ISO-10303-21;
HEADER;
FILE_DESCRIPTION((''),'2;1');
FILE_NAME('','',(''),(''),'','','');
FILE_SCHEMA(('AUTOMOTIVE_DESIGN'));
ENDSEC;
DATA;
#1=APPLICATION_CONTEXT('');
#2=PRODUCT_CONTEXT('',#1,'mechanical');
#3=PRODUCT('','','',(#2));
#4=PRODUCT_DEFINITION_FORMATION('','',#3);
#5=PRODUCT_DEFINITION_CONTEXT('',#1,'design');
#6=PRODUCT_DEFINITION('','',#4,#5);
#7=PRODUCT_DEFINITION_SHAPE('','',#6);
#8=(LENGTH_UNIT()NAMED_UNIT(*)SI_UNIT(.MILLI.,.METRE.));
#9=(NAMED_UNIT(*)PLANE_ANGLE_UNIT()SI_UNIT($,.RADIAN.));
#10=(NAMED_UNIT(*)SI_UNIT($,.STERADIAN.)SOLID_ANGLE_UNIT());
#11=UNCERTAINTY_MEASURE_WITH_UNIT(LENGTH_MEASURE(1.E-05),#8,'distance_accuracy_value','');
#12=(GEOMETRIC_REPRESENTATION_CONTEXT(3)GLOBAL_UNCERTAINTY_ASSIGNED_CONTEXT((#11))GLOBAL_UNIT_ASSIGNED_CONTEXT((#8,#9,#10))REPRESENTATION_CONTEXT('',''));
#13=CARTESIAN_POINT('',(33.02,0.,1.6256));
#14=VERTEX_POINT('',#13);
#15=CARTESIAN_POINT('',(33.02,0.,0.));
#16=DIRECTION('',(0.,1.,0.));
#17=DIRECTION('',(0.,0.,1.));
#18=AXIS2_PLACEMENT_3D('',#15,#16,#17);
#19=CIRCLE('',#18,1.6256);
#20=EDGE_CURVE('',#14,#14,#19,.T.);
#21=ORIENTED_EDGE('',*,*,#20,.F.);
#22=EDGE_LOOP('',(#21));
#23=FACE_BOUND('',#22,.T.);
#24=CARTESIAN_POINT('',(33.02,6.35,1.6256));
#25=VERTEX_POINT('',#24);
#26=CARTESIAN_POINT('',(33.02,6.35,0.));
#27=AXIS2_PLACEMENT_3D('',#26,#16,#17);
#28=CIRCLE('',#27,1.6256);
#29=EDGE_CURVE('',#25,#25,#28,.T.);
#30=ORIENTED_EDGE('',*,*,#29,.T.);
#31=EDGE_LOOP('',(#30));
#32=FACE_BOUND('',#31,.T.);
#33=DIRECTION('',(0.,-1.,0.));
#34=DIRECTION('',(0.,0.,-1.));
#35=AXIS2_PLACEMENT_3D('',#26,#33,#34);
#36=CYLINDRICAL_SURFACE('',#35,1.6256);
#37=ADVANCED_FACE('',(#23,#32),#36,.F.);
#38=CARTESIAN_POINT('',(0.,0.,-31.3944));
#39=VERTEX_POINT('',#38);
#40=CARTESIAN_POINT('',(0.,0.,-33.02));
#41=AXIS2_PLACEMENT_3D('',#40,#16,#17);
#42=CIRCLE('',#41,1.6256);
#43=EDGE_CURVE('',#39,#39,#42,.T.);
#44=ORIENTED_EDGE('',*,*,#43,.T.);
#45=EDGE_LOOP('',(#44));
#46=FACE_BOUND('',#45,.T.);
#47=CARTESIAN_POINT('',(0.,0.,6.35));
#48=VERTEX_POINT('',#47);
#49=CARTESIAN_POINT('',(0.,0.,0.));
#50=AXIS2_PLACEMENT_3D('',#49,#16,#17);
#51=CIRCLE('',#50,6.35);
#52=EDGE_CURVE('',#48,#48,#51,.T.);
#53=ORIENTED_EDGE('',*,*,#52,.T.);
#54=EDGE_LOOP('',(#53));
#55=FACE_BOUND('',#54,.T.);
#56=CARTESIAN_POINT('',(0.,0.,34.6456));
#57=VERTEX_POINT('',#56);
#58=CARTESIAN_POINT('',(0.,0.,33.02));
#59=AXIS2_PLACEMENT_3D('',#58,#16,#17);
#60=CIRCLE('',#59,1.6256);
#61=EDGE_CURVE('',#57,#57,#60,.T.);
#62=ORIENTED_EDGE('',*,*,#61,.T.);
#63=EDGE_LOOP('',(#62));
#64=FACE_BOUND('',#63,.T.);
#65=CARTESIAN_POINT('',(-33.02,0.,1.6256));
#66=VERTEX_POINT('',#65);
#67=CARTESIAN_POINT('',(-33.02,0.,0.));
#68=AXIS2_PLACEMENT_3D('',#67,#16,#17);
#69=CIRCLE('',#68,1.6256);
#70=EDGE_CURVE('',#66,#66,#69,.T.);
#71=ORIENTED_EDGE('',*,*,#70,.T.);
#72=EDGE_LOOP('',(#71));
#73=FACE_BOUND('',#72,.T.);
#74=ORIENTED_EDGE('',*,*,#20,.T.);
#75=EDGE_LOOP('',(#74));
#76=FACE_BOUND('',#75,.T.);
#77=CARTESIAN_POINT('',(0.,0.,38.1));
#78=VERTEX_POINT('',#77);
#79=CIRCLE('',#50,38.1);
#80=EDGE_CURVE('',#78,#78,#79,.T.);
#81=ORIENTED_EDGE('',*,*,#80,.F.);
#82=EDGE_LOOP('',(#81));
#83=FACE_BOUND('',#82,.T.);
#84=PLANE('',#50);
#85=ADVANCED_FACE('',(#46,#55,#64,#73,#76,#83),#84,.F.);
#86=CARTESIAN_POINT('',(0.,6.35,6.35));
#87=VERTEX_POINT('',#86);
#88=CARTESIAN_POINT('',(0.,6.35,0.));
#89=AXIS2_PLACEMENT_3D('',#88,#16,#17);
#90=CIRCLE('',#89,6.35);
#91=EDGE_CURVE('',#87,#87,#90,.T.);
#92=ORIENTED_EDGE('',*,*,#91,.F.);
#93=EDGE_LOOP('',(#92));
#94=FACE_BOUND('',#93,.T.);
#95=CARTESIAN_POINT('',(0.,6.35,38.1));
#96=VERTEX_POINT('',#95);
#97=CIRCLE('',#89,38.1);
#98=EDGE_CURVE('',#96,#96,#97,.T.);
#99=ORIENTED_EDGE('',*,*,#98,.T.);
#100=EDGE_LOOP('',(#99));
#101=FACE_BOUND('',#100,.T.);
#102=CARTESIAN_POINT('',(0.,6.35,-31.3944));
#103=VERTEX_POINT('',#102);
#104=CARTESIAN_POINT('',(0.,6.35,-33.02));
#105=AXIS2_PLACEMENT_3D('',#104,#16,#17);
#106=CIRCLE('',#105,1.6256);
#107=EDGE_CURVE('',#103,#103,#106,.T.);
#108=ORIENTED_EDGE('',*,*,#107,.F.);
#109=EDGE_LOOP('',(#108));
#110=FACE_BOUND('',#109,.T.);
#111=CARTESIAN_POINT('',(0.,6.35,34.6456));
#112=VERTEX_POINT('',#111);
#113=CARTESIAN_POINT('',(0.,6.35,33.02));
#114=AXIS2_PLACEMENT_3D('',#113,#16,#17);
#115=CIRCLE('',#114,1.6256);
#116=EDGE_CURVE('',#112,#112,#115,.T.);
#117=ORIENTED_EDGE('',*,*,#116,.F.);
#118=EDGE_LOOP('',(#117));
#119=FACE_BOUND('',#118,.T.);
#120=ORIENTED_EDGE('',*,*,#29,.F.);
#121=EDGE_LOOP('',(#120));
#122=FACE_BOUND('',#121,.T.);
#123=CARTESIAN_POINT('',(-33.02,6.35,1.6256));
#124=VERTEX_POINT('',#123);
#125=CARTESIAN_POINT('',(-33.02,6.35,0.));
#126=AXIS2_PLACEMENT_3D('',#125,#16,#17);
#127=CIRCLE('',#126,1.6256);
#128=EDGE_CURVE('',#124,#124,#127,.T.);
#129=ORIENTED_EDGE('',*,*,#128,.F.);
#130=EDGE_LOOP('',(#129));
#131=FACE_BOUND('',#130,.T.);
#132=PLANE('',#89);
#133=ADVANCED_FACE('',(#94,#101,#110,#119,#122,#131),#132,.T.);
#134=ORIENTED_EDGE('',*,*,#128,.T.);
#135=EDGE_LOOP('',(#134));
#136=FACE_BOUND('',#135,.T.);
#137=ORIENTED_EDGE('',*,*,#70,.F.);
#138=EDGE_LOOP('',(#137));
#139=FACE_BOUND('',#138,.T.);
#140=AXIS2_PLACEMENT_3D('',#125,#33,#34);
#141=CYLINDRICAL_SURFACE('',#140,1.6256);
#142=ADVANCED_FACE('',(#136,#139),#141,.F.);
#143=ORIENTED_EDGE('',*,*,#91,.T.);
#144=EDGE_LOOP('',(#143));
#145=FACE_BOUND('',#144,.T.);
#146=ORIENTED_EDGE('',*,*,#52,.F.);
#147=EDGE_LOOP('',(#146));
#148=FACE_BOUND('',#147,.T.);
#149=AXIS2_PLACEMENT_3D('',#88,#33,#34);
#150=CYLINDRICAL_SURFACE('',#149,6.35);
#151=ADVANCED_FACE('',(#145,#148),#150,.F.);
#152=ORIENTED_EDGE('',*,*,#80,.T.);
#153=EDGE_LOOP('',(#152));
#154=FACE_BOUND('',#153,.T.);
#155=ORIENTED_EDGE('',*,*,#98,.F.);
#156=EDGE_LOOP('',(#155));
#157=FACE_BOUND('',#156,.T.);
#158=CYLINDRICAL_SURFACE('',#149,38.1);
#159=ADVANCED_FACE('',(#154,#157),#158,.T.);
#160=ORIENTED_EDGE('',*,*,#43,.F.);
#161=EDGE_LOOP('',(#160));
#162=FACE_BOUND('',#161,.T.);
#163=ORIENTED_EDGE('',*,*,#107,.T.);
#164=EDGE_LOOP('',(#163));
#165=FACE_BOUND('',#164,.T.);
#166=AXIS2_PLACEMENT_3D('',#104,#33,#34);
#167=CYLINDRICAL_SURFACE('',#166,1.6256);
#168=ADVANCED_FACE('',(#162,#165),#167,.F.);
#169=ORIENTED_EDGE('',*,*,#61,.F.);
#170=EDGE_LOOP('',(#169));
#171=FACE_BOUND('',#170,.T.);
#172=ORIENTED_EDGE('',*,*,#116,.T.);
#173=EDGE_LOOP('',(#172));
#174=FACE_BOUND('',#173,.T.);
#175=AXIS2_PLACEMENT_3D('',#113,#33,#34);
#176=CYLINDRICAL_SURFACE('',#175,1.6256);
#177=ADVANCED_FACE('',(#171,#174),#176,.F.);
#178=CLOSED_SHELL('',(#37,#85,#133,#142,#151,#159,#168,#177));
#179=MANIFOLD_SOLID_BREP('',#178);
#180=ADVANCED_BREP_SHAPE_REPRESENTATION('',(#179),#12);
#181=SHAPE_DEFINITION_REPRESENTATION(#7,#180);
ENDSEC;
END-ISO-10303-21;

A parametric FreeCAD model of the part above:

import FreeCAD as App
import Part
import Sketcher
from FreeCAD import Vector
Q = App.Units.Quantity

doc = App.newDocument("Part")
body = doc.addObject("PartDesign::Body", "Body")

# Sketch on XZ plane
sketch1 = doc.addObject("Sketcher::SketchObject", "Sketch")
body.addObject(sketch1)
sketch1.AttachmentSupport = (doc.XZ_Plane, [""])
sketch1.MapMode = "FlatFace"
sketch1.addGeometry([
    Part.Circle(Vector(0, 0, 0), Vector(0, 0, 1), 38.1),  # 0
    Part.Circle(Vector(0, -33, 0), Vector(0, 0, 1), 1.6),  # 1
    Part.Circle(Vector(-33, 0, 0), Vector(0, 0, 1), 1.6),  # 2
    Part.Circle(Vector(33, 0, 0), Vector(0, 0, 1), 1.6),  # 3
    Part.Circle(Vector(0, 0, 0), Vector(0, 0, 1), 6.3),  # 4
    Part.Circle(Vector(0, 33, 0), Vector(0, 0, 1), 1.6),  # 5
], False)
sketch1.addConstraint([
    Sketcher.Constraint("Coincident", 0, 3, -1, 1),
    Sketcher.Constraint("Coincident", 4, 3, -1, 1),
    Sketcher.Constraint("Equal", 1, 2),
    Sketcher.Constraint("Equal", 2, 3),
    Sketcher.Constraint("Equal", 3, 5),
    Sketcher.Constraint("Symmetric", 2, 3, 3, 3, -1, 1),
    Sketcher.Constraint("Symmetric", 1, 3, 5, 3, -1, 1),
    Sketcher.Constraint("PointOnObject", 1, 3, -2),
    Sketcher.Constraint("PointOnObject", 2, 3, -1),
    Sketcher.Constraint("Diameter", 0, Q("3 in")),
    Sketcher.Constraint("Diameter", 4, Q("0.5 in")),
    Sketcher.Constraint("Diameter", 1, Q("0.128 in")),
    Sketcher.Constraint("DistanceY", 1, 3, -1, 1, Q("1.3 in")),
    Sketcher.Constraint("DistanceX", 2, 3, -1, 1, Q("1.3 in")),
])
pad1 = doc.addObject("PartDesign::Pad", "Pad")
body.addObject(pad1)
pad1.Profile = sketch1
pad1.Length = Q("0.25 in")
pad1.Reversed = True

doc.recompute()
